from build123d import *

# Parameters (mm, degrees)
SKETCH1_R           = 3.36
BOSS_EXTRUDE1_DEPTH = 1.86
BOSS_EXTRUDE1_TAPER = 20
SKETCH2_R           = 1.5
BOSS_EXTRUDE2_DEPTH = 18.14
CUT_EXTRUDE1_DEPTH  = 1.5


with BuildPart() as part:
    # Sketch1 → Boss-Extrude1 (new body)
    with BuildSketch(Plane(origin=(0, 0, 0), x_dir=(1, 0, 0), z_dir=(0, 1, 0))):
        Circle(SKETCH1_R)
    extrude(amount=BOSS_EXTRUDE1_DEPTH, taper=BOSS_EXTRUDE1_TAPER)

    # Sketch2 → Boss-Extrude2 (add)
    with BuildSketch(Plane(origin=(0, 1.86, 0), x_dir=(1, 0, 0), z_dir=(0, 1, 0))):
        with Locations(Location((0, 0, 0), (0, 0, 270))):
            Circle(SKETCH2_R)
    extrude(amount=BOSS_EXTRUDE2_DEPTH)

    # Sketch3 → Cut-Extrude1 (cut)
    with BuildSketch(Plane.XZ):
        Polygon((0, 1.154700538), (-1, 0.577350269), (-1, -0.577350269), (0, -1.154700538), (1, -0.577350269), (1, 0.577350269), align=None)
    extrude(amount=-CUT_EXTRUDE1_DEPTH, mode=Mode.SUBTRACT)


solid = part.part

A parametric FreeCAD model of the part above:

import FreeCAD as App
import Part
import Sketcher
Q = App.Units.Quantity


def add_polygon(sketch, points):
    """Adds a closed chain of lines whose ends are joined by coincident constraints."""
    first, n = sketch.GeometryCount, len(points)
    for a, b in zip(points, points[1:] + points[:1]):
        sketch.addGeometry(Part.LineSegment(App.Vector(*a, 0), App.Vector(*b, 0)), False)
    for i in range(n):
        sketch.addConstraint(Sketcher.Constraint("Coincident", first + i, 2, first + (i + 1) % n, 1))

doc = App.newDocument("Part")
params = doc.addObject("Spreadsheet::Sheet", "Params")
for row, (alias, value) in enumerate([
    ("sketch1_diameter", "6.72 mm"),
    ("pad1_length", "1.86 mm"),
    ("pad1_taper", "-20 deg"),
    ("sketch2_diameter", "3 mm"),
    ("pad2_length", "18.14 mm"),
    ("pocket1_length", "1.5 mm"),
], start=1):
    params.set(f"A{row}", alias)
    params.set(f"B{row}", "=" + value)
    params.setAlias(f"B{row}", alias)

body = doc.addObject("PartDesign::Body", "Body")

# Sketch on XZ plane
sketch1 = doc.addObject("Sketcher::SketchObject", "Sketch")
body.addObject(sketch1)
sketch1.AttachmentSupport = (doc.XZ_Plane, [""])
sketch1.MapMode = "FlatFace"
sketch1.addGeometry(Part.Circle(App.Vector(0, 0, 0), App.Vector(0, 0, 1), 3.4), False)
sketch1.addConstraint(Sketcher.Constraint("Coincident", 0, 3, -1, 1))
sketch1.addConstraint(Sketcher.Constraint("Diameter", 0, Q("6.72 mm")))
sketch1.setExpression("Constraints[1]", "Params.sketch1_diameter")
pad1 = doc.addObject("PartDesign::Pad", "Pad")
body.addObject(pad1)
pad1.Profile = sketch1
pad1.setExpression("Length", "Params.pad1_length")
pad1.Reversed = True
pad1.setExpression("TaperAngle", "Params.pad1_taper")

# Sketch on XZ plane
sketch2 = doc.addObject("Sketcher::SketchObject", "Sketch001")
body.addObject(sketch2)
sketch2.AttachmentSupport = (doc.XZ_Plane, [""])
sketch2.MapMode = "FlatFace"
sketch2.AttachmentOffset = App.Placement(App.Vector(0, 0, -1.86), App.Rotation())
sketch2.addGeometry(Part.Circle(App.Vector(0, 0, 0), App.Vector(0, 0, 1), 1.5), False)
sketch2.addConstraint(Sketcher.Constraint("Coincident", 0, 3, -1, 1))
sketch2.addConstraint(Sketcher.Constraint("Diameter", 0, Q("3 mm")))
sketch2.setExpression("Constraints[1]", "Params.sketch2_diameter")
pad2 = doc.addObject("PartDesign::Pad", "Pad001")
body.addObject(pad2)
pad2.Profile = sketch2
pad2.setExpression("Length", "Params.pad2_length")
pad2.Reversed = True

# Sketch on XZ plane
sketch3 = doc.addObject("Sketcher::SketchObject", "Sketch002")
body.addObject(sketch3)
sketch3.AttachmentSupport = (doc.XZ_Plane, [""])
sketch3.MapMode = "FlatFace"
add_polygon(sketch3, [(0, 1.2), (-1, 0.6), (-1, -0.6), (0, -1.2), (1, -0.6), (1, 0.6)])  # lines 0-5
sketch3.addConstraint(Sketcher.Constraint("Vertical", 1))
sketch3.addConstraint(Sketcher.Constraint("Vertical", 4))
sketch3.addConstraint(Sketcher.Constraint("Symmetric", 0, 2, 3, 2, -1, 1))
sketch3.addConstraint(Sketcher.Constraint("Symmetric", 2, 2, 5, 2, -1, 1))
sketch3.addConstraint(Sketcher.Constraint("PointOnObject", 2, 2, -2))
sketch3.addConstraint(Sketcher.Constraint("Parallel", 2, 5))
sketch3.addConstraint(Sketcher.Constraint("Horizontal", 1, 2, 3, 2))
sketch3.addConstraint(Sketcher.Constraint("Angle", 0, Q("-150 deg")))
sketch3.addConstraint(Sketcher.Constraint("DistanceX", 0, 2, -1, 1, Q("1 mm")))
sketch3.addConstraint(Sketcher.Constraint("DistanceY", 1, 2, 1, 1, Q("1.154701 mm")))
pocket1 = doc.addObject("PartDesign::Pocket", "Pocket")
body.addObject(pocket1)
pocket1.Profile = sketch3
pocket1.setExpression("Length", "Params.pocket1_length")

doc.recompute()
